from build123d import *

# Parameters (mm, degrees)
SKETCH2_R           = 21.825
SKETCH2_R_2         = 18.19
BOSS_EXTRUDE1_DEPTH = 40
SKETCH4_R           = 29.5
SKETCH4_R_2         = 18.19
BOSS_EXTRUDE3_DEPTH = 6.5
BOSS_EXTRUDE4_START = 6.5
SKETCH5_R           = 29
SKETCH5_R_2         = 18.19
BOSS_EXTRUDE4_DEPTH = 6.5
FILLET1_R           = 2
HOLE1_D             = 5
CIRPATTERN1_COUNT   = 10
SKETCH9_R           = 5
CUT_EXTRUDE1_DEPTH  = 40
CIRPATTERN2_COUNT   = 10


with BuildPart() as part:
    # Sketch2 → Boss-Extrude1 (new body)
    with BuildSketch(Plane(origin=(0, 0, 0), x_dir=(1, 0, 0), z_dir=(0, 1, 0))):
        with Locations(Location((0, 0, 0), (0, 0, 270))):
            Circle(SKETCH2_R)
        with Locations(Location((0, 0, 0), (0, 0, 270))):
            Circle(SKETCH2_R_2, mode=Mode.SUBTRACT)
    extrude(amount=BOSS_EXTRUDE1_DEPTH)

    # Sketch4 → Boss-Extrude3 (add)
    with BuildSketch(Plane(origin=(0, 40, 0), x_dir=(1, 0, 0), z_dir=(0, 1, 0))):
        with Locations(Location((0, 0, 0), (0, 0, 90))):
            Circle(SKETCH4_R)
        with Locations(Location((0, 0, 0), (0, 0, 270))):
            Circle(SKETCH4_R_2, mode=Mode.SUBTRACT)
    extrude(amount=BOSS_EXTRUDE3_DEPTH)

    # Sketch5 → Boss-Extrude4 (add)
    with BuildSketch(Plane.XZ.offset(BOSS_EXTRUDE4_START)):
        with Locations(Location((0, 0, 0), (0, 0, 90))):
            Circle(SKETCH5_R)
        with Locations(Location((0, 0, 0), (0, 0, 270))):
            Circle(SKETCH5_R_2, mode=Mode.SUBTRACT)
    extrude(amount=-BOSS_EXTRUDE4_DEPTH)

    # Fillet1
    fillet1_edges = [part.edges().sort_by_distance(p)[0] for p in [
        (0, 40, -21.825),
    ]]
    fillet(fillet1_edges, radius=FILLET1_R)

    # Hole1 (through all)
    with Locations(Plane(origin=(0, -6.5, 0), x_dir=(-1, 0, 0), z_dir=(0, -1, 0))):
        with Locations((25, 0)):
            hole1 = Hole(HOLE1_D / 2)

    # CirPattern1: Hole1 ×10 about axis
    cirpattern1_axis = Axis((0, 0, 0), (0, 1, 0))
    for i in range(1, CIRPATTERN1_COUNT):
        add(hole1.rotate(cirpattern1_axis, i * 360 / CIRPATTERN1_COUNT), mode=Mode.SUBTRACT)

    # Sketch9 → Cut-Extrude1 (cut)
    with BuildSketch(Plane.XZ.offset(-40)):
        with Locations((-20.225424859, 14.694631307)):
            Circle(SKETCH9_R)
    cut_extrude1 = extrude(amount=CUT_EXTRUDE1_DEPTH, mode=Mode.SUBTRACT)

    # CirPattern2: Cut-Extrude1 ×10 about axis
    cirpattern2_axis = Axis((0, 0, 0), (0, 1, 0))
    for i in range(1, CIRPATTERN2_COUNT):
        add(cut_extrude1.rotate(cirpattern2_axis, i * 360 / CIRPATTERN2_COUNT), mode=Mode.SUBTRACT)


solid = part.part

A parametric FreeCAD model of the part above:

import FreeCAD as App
import Part
import Sketcher

V = App.Vector
Q = App.Units.Quantity


def edges_at(feature, points):
    """Names of the edges that pass closest to the given points."""
    edges = feature.Shape.Edges
    near = lambda p: min(range(len(edges)), key=lambda i: edges[i].distToShape(Part.Vertex(*p))[0])
    return sorted({f"Edge{near(p) + 1}" for p in points})

doc = App.newDocument("Part")
body = doc.addObject("PartDesign::Body", "Body")

sketch1 = body.newObject("Sketcher::SketchObject", "Sketch")
sketch1.AttachmentSupport = (doc.getObject("XZ_Plane"), [""])
sketch1.MapMode = "FlatFace"
sketch1.addGeometry(Part.Circle(V(0, 0, 0), V(0, 0, 1), 21.825), False)
sketch1.addGeometry(Part.Circle(V(0, 0, 0), V(0, 0, 1), 18.19), False)
sketch1.addConstraint(Sketcher.Constraint("Coincident", 0, 3, -1, 1))
sketch1.addConstraint(Sketcher.Constraint("Coincident", 1, 3, -1, 1))
sketch1.addConstraint(Sketcher.Constraint("Diameter", 0, Q("43.65 mm")))
sketch1.addConstraint(Sketcher.Constraint("Diameter", 1, Q("36.38 mm")))
pad1 = body.newObject("PartDesign::Pad", "Pad")
pad1.Profile = sketch1
pad1.Length = 40
pad1.Reversed = True

sketch2 = body.newObject("Sketcher::SketchObject", "Sketch001")
sketch2.AttachmentSupport = (doc.getObject("XZ_Plane"), [""])
sketch2.MapMode = "FlatFace"
sketch2.AttachmentOffset = App.Placement(V(0, 0, -40), App.Rotation())
sketch2.addGeometry(Part.Circle(V(0, 0, 0), V(0, 0, 1), 29.5), False)
sketch2.addGeometry(Part.Circle(V(0, 0, 0), V(0, 0, 1), 18.19), False)
sketch2.addConstraint(Sketcher.Constraint("Coincident", 0, 3, -1, 1))
sketch2.addConstraint(Sketcher.Constraint("Coincident", 1, 3, -1, 1))
sketch2.addConstraint(Sketcher.Constraint("Diameter", 0, Q("59 mm")))
sketch2.addConstraint(Sketcher.Constraint("Diameter", 1, Q("36.38 mm")))
pad2 = body.newObject("PartDesign::Pad", "Pad001")
pad2.Profile = sketch2
pad2.Length = 6.5
pad2.Reversed = True

sketch3 = body.newObject("Sketcher::SketchObject", "Sketch002")
sketch3.AttachmentSupport = (doc.getObject("XZ_Plane"), [""])
sketch3.MapMode = "FlatFace"
sketch3.AttachmentOffset = App.Placement(V(0, 0, 6.5), App.Rotation())
sketch3.addGeometry(Part.Circle(V(0, 0, 0), V(0, 0, 1), 29), False)
sketch3.addGeometry(Part.Circle(V(0, 0, 0), V(0, 0, 1), 18.19), False)
sketch3.addConstraint(Sketcher.Constraint("Coincident", 0, 3, -1, 1))
sketch3.addConstraint(Sketcher.Constraint("Coincident", 1, 3, -1, 1))
sketch3.addConstraint(Sketcher.Constraint("Diameter", 0, Q("58 mm")))
sketch3.addConstraint(Sketcher.Constraint("Diameter", 1, Q("36.38 mm")))
pad3 = body.newObject("PartDesign::Pad", "Pad002")
pad3.Profile = sketch3
pad3.Length = 6.5
pad3.Reversed = True
doc.recompute()

fillet = body.newObject("PartDesign::Fillet", "Fillet")
fillet.Base = (pad3, edges_at(pad3, [(0, 40, -21.825)]))
fillet.Radius = 2

sketch4 = body.newObject("Sketcher::SketchObject", "Sketch003")
sketch4.AttachmentSupport = (doc.getObject("XZ_Plane"), [""])
sketch4.MapMode = "FlatFace"
sketch4.AttachmentOffset = App.Placement(V(0, 0, 6.5), App.Rotation())
sketch4.addGeometry(Part.Circle(V(-25, 0, 0), V(0, 0, 1), 2.5), False)
sketch4.addConstraint(Sketcher.Constraint("PointOnObject", 0, 3, -1))
sketch4.addConstraint(Sketcher.Constraint("Diameter", 0, Q("5 mm")))
sketch4.addConstraint(Sketcher.Constraint("DistanceX", 0, 3, -1, 1, Q("25 mm")))
doc.recompute()
hole = body.newObject("PartDesign::Hole", "Hole")
hole.Profile = sketch4
hole.ThreadType = "None"
hole.Diameter = 5
hole.DepthType = "ThroughAll"
doc.recompute()

polarpattern = body.newObject("PartDesign::PolarPattern", "PolarPattern")
polarpattern.Originals = [hole]
polarpattern.Axis = (doc.getObject("Y_Axis"), [""])
polarpattern.Angle = 360
polarpattern.Occurrences = 10
body.Tip = polarpattern

sketch5 = body.newObject("Sketcher::SketchObject", "Sketch004")
sketch5.AttachmentSupport = (doc.getObject("XZ_Plane"), [""])
sketch5.MapMode = "FlatFace"
sketch5.AttachmentOffset = App.Placement(V(0, 0, -40), App.Rotation())
sketch5.addGeometry(Part.Circle(V(-20.225425, 14.694631, 0), V(0, 0, 1), 5), False)
sketch5.addConstraint(Sketcher.Constraint("Diameter", 0, Q("10 mm")))
sketch5.addConstraint(Sketcher.Constraint("DistanceY", -1, 1, 0, 3, Q("14.694631 mm")))
sketch5.addConstraint(Sketcher.Constraint("DistanceX", 0, 3, -1, 1, Q("20.225425 mm")))
pocket1 = body.newObject("PartDesign::Pocket", "Pocket")
pocket1.Profile = sketch5
pocket1.Length = 40
pocket1.Reversed = True
doc.recompute()

polarpattern2 = body.newObject("PartDesign::PolarPattern", "PolarPattern001")
polarpattern2.Originals = [pocket1]
polarpattern2.Axis = (doc.getObject("Y_Axis"), [""])
polarpattern2.Angle = 360
polarpattern2.Occurrences = 10
body.Tip = polarpattern2

doc.recompute()
